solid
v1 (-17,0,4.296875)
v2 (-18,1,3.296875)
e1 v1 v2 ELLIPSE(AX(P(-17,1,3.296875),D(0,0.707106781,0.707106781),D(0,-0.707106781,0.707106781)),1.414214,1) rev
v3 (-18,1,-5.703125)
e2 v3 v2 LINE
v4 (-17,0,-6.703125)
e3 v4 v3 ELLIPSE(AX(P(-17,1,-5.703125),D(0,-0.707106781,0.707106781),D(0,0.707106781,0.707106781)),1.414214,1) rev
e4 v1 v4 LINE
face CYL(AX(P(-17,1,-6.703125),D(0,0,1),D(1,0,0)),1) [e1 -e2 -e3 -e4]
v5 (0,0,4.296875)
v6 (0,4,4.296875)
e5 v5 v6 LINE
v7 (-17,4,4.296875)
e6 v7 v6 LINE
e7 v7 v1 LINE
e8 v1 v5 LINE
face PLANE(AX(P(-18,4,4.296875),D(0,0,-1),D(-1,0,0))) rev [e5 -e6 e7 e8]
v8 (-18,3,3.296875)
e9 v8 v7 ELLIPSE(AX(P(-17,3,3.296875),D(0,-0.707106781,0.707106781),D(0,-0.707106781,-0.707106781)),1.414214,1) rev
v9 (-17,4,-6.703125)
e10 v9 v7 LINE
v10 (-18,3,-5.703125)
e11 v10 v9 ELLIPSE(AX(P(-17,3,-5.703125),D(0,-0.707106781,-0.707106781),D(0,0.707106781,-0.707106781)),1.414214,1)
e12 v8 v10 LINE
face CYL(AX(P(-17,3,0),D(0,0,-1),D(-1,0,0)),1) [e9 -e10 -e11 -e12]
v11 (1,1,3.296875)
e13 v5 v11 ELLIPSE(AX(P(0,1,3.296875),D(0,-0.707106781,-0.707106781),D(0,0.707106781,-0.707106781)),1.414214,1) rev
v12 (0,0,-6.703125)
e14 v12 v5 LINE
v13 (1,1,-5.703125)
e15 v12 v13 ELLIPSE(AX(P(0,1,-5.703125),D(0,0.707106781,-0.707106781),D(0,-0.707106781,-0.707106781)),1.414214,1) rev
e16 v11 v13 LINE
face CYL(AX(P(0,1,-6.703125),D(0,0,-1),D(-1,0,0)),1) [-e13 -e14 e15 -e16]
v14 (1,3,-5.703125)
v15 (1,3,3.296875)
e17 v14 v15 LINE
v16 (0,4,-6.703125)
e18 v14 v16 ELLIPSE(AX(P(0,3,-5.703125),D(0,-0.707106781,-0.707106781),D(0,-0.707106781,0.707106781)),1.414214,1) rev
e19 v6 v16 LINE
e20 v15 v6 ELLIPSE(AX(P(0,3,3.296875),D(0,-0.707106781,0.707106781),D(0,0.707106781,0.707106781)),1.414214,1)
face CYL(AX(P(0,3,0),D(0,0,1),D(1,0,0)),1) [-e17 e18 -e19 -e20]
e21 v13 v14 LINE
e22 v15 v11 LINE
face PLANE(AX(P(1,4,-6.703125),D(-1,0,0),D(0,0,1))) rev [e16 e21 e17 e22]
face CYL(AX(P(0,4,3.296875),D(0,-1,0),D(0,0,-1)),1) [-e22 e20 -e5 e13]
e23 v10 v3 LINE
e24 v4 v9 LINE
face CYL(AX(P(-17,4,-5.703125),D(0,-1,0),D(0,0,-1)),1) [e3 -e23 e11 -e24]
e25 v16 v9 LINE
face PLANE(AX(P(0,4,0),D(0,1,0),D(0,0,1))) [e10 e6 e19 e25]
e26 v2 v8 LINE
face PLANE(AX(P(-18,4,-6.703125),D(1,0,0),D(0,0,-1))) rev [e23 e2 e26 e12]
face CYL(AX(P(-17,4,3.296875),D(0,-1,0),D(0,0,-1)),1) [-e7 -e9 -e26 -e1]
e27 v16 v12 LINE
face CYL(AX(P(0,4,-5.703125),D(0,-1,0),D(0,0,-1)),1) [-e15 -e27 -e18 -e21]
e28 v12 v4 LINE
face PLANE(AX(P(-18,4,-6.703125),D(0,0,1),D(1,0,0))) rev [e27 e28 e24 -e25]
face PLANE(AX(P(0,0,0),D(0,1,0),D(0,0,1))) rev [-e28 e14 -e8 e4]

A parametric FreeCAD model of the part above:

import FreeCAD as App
import Part
import Sketcher
from FreeCAD import Vector
Q = App.Units.Quantity


def edges_at(feature, points):
    """Names of the edges that pass closest to the given points."""
    edges = feature.Shape.Edges
    near = lambda p: min(range(len(edges)), key=lambda i: edges[i].distToShape(Part.Vertex(*p))[0])
    return sorted({f"Edge{near(p) + 1}" for p in points})


def add_polygon(sketch, points):
    """Adds a closed chain of lines whose ends are joined by coincident constraints."""
    first, n = sketch.GeometryCount, len(points)
    for a, b in zip(points, points[1:] + points[:1]):
        sketch.addGeometry(Part.LineSegment(App.Vector(*a, 0), App.Vector(*b, 0)), False)
    for i in range(n):
        sketch.addConstraint(Sketcher.Constraint("Coincident", first + i, 2, first + (i + 1) % n, 1))

doc = App.newDocument("Part")
body = doc.addObject("PartDesign::Body", "Body")

# Sketch on XZ plane
sketch1 = body.newObject("Sketcher::SketchObject", "Sketch")
sketch1.AttachmentSupport = (doc.getObject("XZ_Plane"), [""])
sketch1.MapMode = "FlatFace"
add_polygon(sketch1, [(-18, -7), (-18, 4), (1, 4), (1, -7)])  # lines 0-3
sketch1.addConstraint([
    Sketcher.Constraint("Vertical", 0),
    Sketcher.Constraint("Horizontal", 1),
    Sketcher.Constraint("Vertical", 2),
    Sketcher.Constraint("Horizontal", 3),
    Sketcher.Constraint("DistanceX", 1, 1, 1, 2, Q("19 mm")),
    Sketcher.Constraint("DistanceY", 0, 1, 0, 2, Q("11 mm")),
    Sketcher.Constraint("DistanceX", 0, 2, -1, 1, Q("18 mm")),
    Sketcher.Constraint("DistanceY", -1, 1, 0, 2, Q("4.296875 mm")),
])
pad1 = body.newObject("PartDesign::Pad", "Pad")
pad1.Profile = sketch1
pad1.Length = 4
pad1.Reversed = True
doc.recompute()

fillet = body.newObject("PartDesign::Fillet", "Fillet")
fillet.Base = (pad1, edges_at(pad1, [
    (-18, 4, -1.203),
    (1, 4, -1.203),
    (-18, 0, -1.203),
    (1, 0, -1.203),
    (1, 2, 4.297),
    (-18, 2, 4.297),
    (-18, 2, -6.703),
    (1, 2, -6.703),
]))
fillet.Radius = 1

doc.recompute()
